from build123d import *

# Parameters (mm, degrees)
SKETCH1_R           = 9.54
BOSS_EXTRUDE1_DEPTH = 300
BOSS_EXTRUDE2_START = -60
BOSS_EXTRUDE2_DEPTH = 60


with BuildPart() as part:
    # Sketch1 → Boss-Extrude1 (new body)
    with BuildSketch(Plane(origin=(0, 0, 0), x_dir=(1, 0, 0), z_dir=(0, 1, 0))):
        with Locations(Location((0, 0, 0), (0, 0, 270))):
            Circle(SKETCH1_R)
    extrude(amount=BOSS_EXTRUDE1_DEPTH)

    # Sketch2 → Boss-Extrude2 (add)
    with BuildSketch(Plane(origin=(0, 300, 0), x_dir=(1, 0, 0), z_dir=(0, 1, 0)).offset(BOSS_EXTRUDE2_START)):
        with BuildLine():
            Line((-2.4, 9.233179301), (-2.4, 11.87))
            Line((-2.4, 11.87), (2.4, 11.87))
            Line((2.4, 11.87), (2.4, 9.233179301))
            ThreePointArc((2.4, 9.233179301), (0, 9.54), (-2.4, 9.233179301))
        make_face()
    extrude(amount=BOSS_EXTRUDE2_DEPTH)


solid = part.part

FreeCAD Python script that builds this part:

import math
import FreeCAD as App
import Part
import Sketcher
from FreeCAD import Vector

doc = App.newDocument("Part")
body = doc.addObject("PartDesign::Body", "Body")

sketch1 = body.newObject("Sketcher::SketchObject", "Sketch")
sketch1.AttachmentSupport = (doc.getObject("XZ_Plane"), [""])
sketch1.MapMode = "FlatFace"
sketch1.addGeometry(Part.Circle(Vector(0, 0, 0), Vector(0, 0, 1), 9.54), False)
sketch1.addConstraint(Sketcher.Constraint("Coincident", 0, 3, -1, 1))
sketch1.addConstraint(Sketcher.Constraint("Diameter", 0, 19.08))
pad1 = body.newObject("PartDesign::Pad", "Pad")
pad1.Profile = sketch1
pad1.Length = 300
pad1.Reversed = True

sketch2 = body.newObject("Sketcher::SketchObject", "Sketch001")
sketch2.AttachmentSupport = (doc.getObject("XZ_Plane"), [""])
sketch2.MapMode = "FlatFace"
sketch2.AttachmentOffset = App.Placement(Vector(0, 0, -240), App.Rotation())
sketch2.addGeometry(Part.LineSegment(Vector(-2.4, -11.87, 0), Vector(-2.4, -9.233179, 0)), False)
sketch2.addGeometry(Part.ArcOfCircle(Part.Circle(Vector(0, 0, 0), Vector(0, 0, 1), 9.54), math.radians(-104.570574), math.radians(-75.429426)), False)
sketch2.addGeometry(Part.LineSegment(Vector(2.4, -9.233179, 0), Vector(2.4, -11.87, 0)), False)
sketch2.addGeometry(Part.LineSegment(Vector(2.4, -11.87, 0), Vector(-2.4, -11.87, 0)), False)
sketch2.addConstraint(Sketcher.Constraint("Coincident", 0, 2, 1, 1))
sketch2.addConstraint(Sketcher.Constraint("Coincident", 1, 2, 2, 1))
sketch2.addConstraint(Sketcher.Constraint("Coincident", 2, 2, 3, 1))
sketch2.addConstraint(Sketcher.Constraint("Coincident", 3, 2, 0, 1))
sketch2.addConstraint(Sketcher.Constraint("Vertical", 0))
sketch2.addConstraint(Sketcher.Constraint("Vertical", 2))
sketch2.addConstraint(Sketcher.Constraint("Horizontal", 3))
sketch2.addConstraint(Sketcher.Constraint("Coincident", 1, 3, -1, 1))
sketch2.addConstraint(Sketcher.Constraint("Horizontal", 0, 2, 1, 2))
sketch2.addConstraint(Sketcher.Constraint("Radius", 1, 9.54))
sketch2.addConstraint(Sketcher.Constraint("DistanceX", 3, 2, 3, 1, 4.8))
sketch2.addConstraint(Sketcher.Constraint("DistanceY", 2, 2, -1, 1, 11.87))
pad2 = body.newObject("PartDesign::Pad", "Pad001")
pad2.Profile = sketch2
pad2.Length = 60
pad2.Reversed = True

doc.recompute()
